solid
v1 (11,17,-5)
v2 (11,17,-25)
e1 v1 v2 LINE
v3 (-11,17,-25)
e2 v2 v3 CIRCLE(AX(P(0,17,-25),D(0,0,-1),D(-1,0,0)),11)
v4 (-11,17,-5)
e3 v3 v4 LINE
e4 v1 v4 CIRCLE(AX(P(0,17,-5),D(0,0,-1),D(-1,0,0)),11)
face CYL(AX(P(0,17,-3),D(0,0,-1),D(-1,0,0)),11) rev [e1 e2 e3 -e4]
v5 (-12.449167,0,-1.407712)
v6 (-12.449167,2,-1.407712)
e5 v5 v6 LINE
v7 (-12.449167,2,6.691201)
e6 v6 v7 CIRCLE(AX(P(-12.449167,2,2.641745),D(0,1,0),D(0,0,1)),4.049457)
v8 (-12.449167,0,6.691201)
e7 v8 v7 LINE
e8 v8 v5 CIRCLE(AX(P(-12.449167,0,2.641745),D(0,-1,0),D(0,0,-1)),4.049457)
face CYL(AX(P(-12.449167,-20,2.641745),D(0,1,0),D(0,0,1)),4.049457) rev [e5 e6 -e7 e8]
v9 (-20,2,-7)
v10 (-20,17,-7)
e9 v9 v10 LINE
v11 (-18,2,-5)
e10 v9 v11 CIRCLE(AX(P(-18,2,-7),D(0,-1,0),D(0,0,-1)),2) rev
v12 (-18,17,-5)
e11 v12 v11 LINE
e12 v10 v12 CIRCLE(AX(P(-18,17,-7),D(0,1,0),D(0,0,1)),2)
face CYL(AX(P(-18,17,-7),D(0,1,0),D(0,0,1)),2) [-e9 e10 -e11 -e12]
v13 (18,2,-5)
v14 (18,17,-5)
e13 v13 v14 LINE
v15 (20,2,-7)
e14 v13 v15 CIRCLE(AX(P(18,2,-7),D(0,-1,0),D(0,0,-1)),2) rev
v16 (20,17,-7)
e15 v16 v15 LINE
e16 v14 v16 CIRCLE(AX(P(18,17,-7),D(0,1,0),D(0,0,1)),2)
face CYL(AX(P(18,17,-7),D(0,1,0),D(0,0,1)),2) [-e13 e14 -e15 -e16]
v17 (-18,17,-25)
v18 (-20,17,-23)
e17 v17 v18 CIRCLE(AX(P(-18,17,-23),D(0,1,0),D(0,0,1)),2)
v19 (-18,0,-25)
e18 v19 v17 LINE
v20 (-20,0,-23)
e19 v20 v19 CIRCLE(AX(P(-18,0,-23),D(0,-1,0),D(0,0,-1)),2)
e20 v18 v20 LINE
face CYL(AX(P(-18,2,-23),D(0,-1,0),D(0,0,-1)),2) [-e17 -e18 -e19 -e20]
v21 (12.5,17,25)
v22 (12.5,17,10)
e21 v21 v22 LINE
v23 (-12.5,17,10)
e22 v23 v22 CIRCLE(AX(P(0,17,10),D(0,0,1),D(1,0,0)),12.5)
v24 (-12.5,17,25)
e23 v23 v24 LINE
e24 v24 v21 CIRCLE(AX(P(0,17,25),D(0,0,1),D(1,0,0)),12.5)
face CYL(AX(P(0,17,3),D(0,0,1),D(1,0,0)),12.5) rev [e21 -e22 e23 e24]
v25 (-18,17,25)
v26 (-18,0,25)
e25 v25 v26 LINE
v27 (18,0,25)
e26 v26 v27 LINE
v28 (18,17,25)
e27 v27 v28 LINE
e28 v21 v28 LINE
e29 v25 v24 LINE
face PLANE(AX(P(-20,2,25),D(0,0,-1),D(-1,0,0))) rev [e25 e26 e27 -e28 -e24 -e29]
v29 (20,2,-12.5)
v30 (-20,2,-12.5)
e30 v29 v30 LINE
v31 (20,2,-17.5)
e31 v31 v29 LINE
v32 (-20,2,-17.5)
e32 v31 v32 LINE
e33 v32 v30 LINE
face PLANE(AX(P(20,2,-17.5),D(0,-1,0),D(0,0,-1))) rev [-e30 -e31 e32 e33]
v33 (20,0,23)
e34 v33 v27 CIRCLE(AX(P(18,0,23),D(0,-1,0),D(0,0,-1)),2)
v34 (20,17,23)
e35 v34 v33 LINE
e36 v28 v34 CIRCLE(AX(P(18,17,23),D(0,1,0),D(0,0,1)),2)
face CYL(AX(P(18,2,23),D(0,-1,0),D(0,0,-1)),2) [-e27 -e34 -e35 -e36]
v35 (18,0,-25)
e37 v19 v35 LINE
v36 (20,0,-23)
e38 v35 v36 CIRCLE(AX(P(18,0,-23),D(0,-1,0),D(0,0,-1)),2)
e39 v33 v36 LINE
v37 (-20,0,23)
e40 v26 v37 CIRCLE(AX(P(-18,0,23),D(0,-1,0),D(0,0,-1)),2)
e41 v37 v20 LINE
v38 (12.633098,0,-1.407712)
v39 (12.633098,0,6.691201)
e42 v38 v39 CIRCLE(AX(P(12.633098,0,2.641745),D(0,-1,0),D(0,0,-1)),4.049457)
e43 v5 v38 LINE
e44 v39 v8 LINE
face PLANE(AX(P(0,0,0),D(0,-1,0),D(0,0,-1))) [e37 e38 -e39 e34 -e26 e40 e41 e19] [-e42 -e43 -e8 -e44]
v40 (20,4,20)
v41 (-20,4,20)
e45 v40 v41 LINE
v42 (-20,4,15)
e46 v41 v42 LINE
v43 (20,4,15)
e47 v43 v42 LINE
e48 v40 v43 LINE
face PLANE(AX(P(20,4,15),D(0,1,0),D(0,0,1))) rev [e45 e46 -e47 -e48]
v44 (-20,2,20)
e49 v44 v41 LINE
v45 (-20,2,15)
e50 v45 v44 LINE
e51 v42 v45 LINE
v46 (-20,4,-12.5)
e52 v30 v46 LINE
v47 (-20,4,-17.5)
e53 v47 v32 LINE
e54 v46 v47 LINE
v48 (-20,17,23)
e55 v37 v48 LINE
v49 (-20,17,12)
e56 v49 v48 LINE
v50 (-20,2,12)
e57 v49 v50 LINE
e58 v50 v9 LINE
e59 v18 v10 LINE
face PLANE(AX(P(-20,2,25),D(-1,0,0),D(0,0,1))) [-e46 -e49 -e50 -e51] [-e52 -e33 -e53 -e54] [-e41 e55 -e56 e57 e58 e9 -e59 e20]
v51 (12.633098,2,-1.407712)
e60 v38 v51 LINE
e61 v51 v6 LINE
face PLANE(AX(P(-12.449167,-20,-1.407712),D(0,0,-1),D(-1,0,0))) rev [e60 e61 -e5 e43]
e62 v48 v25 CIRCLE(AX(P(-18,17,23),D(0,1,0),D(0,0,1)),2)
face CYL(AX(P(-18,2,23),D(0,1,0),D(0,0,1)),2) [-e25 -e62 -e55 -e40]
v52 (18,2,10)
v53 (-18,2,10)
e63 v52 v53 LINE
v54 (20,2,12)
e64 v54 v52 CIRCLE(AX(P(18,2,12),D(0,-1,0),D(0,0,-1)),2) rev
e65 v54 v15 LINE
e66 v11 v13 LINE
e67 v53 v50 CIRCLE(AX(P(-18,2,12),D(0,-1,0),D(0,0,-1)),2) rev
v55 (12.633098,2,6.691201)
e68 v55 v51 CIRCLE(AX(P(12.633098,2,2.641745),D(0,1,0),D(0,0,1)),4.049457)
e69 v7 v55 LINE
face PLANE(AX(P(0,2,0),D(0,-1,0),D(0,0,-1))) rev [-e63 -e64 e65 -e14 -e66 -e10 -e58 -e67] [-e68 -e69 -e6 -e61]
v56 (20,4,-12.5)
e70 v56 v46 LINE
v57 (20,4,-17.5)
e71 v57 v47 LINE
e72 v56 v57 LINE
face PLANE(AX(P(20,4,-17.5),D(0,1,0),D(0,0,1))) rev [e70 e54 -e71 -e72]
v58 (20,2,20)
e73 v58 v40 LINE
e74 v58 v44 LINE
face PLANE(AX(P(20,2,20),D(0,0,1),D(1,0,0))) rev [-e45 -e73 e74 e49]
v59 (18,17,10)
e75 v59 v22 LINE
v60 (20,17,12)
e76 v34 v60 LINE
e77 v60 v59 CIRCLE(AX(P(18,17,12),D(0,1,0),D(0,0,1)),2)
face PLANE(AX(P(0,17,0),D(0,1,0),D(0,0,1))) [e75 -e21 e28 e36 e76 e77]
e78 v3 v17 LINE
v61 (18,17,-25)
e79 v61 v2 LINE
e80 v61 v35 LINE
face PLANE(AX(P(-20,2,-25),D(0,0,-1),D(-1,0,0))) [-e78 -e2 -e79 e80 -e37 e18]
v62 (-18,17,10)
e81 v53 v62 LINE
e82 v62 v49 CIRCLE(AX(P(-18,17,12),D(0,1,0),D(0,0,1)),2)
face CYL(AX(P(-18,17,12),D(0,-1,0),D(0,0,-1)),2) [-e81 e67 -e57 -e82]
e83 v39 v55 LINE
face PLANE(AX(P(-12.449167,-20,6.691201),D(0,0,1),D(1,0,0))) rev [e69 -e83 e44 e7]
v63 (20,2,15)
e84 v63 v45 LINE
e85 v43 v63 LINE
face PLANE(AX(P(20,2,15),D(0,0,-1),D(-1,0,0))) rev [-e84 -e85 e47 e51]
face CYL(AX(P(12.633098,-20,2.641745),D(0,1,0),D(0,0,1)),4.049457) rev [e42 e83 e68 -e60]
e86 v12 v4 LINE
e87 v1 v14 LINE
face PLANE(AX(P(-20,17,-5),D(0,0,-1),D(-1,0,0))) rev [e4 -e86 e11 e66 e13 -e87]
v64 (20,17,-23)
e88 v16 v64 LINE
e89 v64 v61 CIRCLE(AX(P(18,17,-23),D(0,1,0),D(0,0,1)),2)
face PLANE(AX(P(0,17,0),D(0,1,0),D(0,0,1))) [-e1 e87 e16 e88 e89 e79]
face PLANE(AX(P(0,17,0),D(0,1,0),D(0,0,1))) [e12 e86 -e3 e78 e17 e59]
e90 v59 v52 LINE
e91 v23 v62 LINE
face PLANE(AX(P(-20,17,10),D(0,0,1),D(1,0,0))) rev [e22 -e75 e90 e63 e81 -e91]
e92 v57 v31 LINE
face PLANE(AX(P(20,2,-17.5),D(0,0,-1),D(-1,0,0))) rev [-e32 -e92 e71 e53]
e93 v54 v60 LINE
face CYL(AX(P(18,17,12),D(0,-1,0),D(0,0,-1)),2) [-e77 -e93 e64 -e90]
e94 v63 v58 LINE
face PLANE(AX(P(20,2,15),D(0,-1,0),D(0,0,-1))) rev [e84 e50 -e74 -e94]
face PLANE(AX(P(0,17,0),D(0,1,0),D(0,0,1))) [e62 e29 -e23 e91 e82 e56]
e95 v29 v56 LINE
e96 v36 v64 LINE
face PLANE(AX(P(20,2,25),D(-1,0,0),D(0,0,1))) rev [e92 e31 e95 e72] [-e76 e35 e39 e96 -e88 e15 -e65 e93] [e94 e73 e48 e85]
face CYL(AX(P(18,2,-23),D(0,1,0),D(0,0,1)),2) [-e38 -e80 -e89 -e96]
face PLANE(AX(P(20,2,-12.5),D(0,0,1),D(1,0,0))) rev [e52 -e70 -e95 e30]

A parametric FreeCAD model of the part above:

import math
import FreeCAD as App
import Part
import Sketcher

V = App.Vector
Q = App.Units.Quantity


def edges_at(feature, points):
    """Names of the edges that pass closest to the given points."""
    edges = feature.Shape.Edges
    near = lambda p: min(range(len(edges)), key=lambda i: edges[i].distToShape(Part.Vertex(*p))[0])
    return sorted({f"Edge{near(p) + 1}" for p in points})

doc = App.newDocument("Part")
params = doc.addObject("Spreadsheet::Sheet", "Params")
for row, (alias, value) in enumerate([
    ("sketch1_width", "40 mm"),
    ("sketch1_height", "50 mm"),
    ("pad1_length", "2 mm"),
    ("sketch2_width", "40 mm"),
    ("sketch2_height", "20 mm"),
    ("sketch2_height2", "15 mm"),
    ("pad2_length", "15 mm"),
    ("sketch3_diameter", "25 mm"),
    ("pocket1_length", "22 mm"),
    ("sketch4_diameter", "22 mm"),
    ("pocket2_length", "22 mm"),
    ("pocket3_length", "22 mm"),
    ("sketch6_width", "2 mm"),
    ("sketch6_height", "5 mm"),
    ("fillet_radius", "2 mm"),
    ("fillet2_radius", "2 mm"),
    ("fillet3_radius", "2 mm"),
    ("fillet4_radius", "2 mm"),
    ("fillet5_radius", "2 mm"),
    ("fillet6_radius", "2 mm"),
    ("fillet7_radius", "2 mm"),
    ("fillet8_radius", "2 mm"),
], start=1):
    params.set(f"A{row}", alias)
    params.set(f"B{row}", "=" + value)
    params.setAlias(f"B{row}", alias)

body = doc.addObject("PartDesign::Body", "Body")

sketch1 = body.newObject("Sketcher::SketchObject", "Sketch")
sketch1.AttachmentSupport = (doc.getObject("XZ_Plane"), [""])
sketch1.MapMode = "FlatFace"
sketch1.addGeometry(Part.LineSegment(V(-20, -25, 0), V(-20, 25, 0)), False)
sketch1.addGeometry(Part.LineSegment(V(-20, 25, 0), V(20, 25, 0)), False)
sketch1.addGeometry(Part.LineSegment(V(20, 25, 0), V(20, -25, 0)), False)
sketch1.addGeometry(Part.LineSegment(V(20, -25, 0), V(-20, -25, 0)), False)
sketch1.addConstraint(Sketcher.Constraint("Coincident", 0, 2, 1, 1))
sketch1.addConstraint(Sketcher.Constraint("Coincident", 1, 2, 2, 1))
sketch1.addConstraint(Sketcher.Constraint("Coincident", 2, 2, 3, 1))
sketch1.addConstraint(Sketcher.Constraint("Coincident", 3, 2, 0, 1))
sketch1.addConstraint(Sketcher.Constraint("Vertical", 0))
sketch1.addConstraint(Sketcher.Constraint("Horizontal", 1))
sketch1.addConstraint(Sketcher.Constraint("Vertical", 2))
sketch1.addConstraint(Sketcher.Constraint("Horizontal", 3))
sketch1.addConstraint(Sketcher.Constraint("Symmetric", 0, 2, 2, 2, -1, 1))
sketch1.addConstraint(Sketcher.Constraint("DistanceX", 1, 1, 1, 2, Q("40 mm")))
sketch1.addConstraint(Sketcher.Constraint("DistanceY", 0, 1, 0, 2, Q("50 mm")))
sketch1.setExpression("Constraints[9]", "Params.sketch1_width")
sketch1.setExpression("Constraints[10]", "Params.sketch1_height")
pad1 = body.newObject("PartDesign::Pad", "Pad")
pad1.Profile = sketch1
pad1.setExpression("Length", "Params.pad1_length")
pad1.Reversed = True

sketch2 = body.newObject("Sketcher::SketchObject", "Sketch001")
sketch2.AttachmentSupport = (doc.getObject("XZ_Plane"), [""])
sketch2.MapMode = "FlatFace"
sketch2.AttachmentOffset = App.Placement(V(0, 0, -2), App.Rotation())
sketch2.addGeometry(Part.LineSegment(V(-20, -25, 0), V(-20, -5, 0)), False)
sketch2.addGeometry(Part.LineSegment(V(-20, -5, 0), V(20, -5, 0)), False)
sketch2.addGeometry(Part.LineSegment(V(20, -5, 0), V(20, -25, 0)), False)
sketch2.addGeometry(Part.LineSegment(V(20, -25, 0), V(-20, -25, 0)), False)
sketch2.addGeometry(Part.LineSegment(V(-20, 10, 0), V(-20, 25, 0)), False)
sketch2.addGeometry(Part.LineSegment(V(-20, 25, 0), V(20, 25, 0)), False)
sketch2.addGeometry(Part.LineSegment(V(20, 25, 0), V(20, 10, 0)), False)
sketch2.addGeometry(Part.LineSegment(V(20, 10, 0), V(-20, 10, 0)), False)
sketch2.addConstraint(Sketcher.Constraint("Coincident", 0, 2, 1, 1))
sketch2.addConstraint(Sketcher.Constraint("Coincident", 1, 2, 2, 1))
sketch2.addConstraint(Sketcher.Constraint("Coincident", 2, 2, 3, 1))
sketch2.addConstraint(Sketcher.Constraint("Coincident", 3, 2, 0, 1))
sketch2.addConstraint(Sketcher.Constraint("Coincident", 4, 2, 5, 1))
sketch2.addConstraint(Sketcher.Constraint("Coincident", 5, 2, 6, 1))
sketch2.addConstraint(Sketcher.Constraint("Coincident", 6, 2, 7, 1))
sketch2.addConstraint(Sketcher.Constraint("Coincident", 7, 2, 4, 1))
sketch2.addConstraint(Sketcher.Constraint("Vertical", 0))
sketch2.addConstraint(Sketcher.Constraint("Horizontal", 1))
sketch2.addConstraint(Sketcher.Constraint("Vertical", 2))
sketch2.addConstraint(Sketcher.Constraint("Horizontal", 3))
sketch2.addConstraint(Sketcher.Constraint("Vertical", 4))
sketch2.addConstraint(Sketcher.Constraint("Horizontal", 5))
sketch2.addConstraint(Sketcher.Constraint("Vertical", 6))
sketch2.addConstraint(Sketcher.Constraint("Horizontal", 7))
sketch2.addConstraint(Sketcher.Constraint("Symmetric", 2, 2, 4, 2, -1, 1))
sketch2.addConstraint(Sketcher.Constraint("Vertical", 3, 2, 4, 2))
sketch2.addConstraint(Sketcher.Constraint("Vertical", 2, 2, 5, 2))
sketch2.addConstraint(Sketcher.Constraint("DistanceX", 1, 1, 1, 2, Q("40 mm")))
sketch2.addConstraint(Sketcher.Constraint("DistanceY", 0, 1, 0, 2, Q("20 mm")))
sketch2.addConstraint(Sketcher.Constraint("DistanceY", 4, 1, 4, 2, Q("15 mm")))
sketch2.addConstraint(Sketcher.Constraint("DistanceY", 0, 2, -1, 1, Q("5 mm")))
sketch2.setExpression("Constraints[19]", "Params.sketch2_width")
sketch2.setExpression("Constraints[20]", "Params.sketch2_height")
sketch2.setExpression("Constraints[21]", "Params.sketch2_height2")
pad2 = body.newObject("PartDesign::Pad", "Pad001")
pad2.Profile = sketch2
pad2.setExpression("Length", "Params.pad2_length")
pad2.Reversed = True

sketch3 = body.newObject("Sketcher::SketchObject", "Sketch002")
sketch3.AttachmentSupport = (doc.getObject("XY_Plane"), [""])
sketch3.MapMode = "FlatFace"
sketch3.AttachmentOffset = App.Placement(V(0, 0, 25), App.Rotation())
sketch3.addGeometry(Part.Circle(V(0, 17, 0), V(0, 0, 1), 12), False)
sketch3.addConstraint(Sketcher.Constraint("PointOnObject", 0, 3, -2))
sketch3.addConstraint(Sketcher.Constraint("Diameter", 0, Q("25 mm")))
sketch3.addConstraint(Sketcher.Constraint("DistanceY", -1, 1, 0, 3, Q("17 mm")))
sketch3.setExpression("Constraints[1]", "Params.sketch3_diameter")
pocket1 = body.newObject("PartDesign::Pocket", "Pocket")
pocket1.Profile = sketch3
pocket1.setExpression("Length", "Params.pocket1_length")

sketch4 = body.newObject("Sketcher::SketchObject", "Sketch003")
sketch4.AttachmentSupport = (doc.getObject("XY_Plane"), [""])
sketch4.MapMode = "FlatFace"
sketch4.AttachmentOffset = App.Placement(V(0, 0, -25), App.Rotation())
sketch4.addGeometry(Part.Circle(V(0, 17, 0), V(0, 0, 1), 11), False)
sketch4.addConstraint(Sketcher.Constraint("PointOnObject", 0, 3, -2))
sketch4.addConstraint(Sketcher.Constraint("Diameter", 0, Q("22 mm")))
sketch4.addConstraint(Sketcher.Constraint("DistanceY", -1, 1, 0, 3, Q("17 mm")))
sketch4.setExpression("Constraints[1]", "Params.sketch4_diameter")
pocket2 = body.newObject("PartDesign::Pocket", "Pocket001")
pocket2.Profile = sketch4
pocket2.setExpression("Length", "Params.pocket2_length")
pocket2.Reversed = True

sketch5 = body.newObject("Sketcher::SketchObject", "Sketch004")
sketch5.AttachmentSupport = (doc.getObject("XZ_Plane"), [""])
sketch5.MapMode = "FlatFace"
sketch5.AttachmentOffset = App.Placement(V(0, 0, -2), App.Rotation())
sketch5.addGeometry(Part.LineSegment(V(12.6, -1.4, 0), V(-12.4, -1.4, 0)), False)
sketch5.addGeometry(Part.ArcOfCircle(Part.Circle(V(-12.4, 2.6, 0), V(0, 0, 1), 4), math.radians(90), math.radians(270)), False)
sketch5.addGeometry(Part.LineSegment(V(-12.4, 6.7, 0), V(12.6, 6.7, 0)), False)
sketch5.addGeometry(Part.ArcOfCircle(Part.Circle(V(12.6, 2.6, 0), V(0, 0, 1), 4), math.radians(-90), math.radians(90)), False)
sketch5.addConstraint(Sketcher.Constraint("Tangent", 0, 2, 1, 2))
sketch5.addConstraint(Sketcher.Constraint("Tangent", 1, 1, 2, 1))
sketch5.addConstraint(Sketcher.Constraint("Tangent", 2, 2, 3, 2))
sketch5.addConstraint(Sketcher.Constraint("Tangent", 3, 1, 0, 1))
sketch5.addConstraint(Sketcher.Constraint("Horizontal", 0))
sketch5.addConstraint(Sketcher.Constraint("Horizontal", 2))
sketch5.addConstraint(Sketcher.Constraint("Radius", 1, Q("4.049457 mm")))
sketch5.addConstraint(Sketcher.Constraint("DistanceY", -1, 1, 1, 1, Q("6.691201 mm")))
sketch5.addConstraint(Sketcher.Constraint("DistanceX", 0, 2, 0, 1, Q("25.082265 mm")))
sketch5.addConstraint(Sketcher.Constraint("DistanceX", 1, 3, -1, 1, Q("12.449167 mm")))
pocket3 = body.newObject("PartDesign::Pocket", "Pocket002")
pocket3.Profile = sketch5
pocket3.setExpression("Length", "Params.pocket3_length")
pocket3.Reversed = True

sketch6 = body.newObject("Sketcher::SketchObject", "Sketch005")
sketch6.AttachmentSupport = (doc.getObject("YZ_Plane"), [""])
sketch6.MapMode = "FlatFace"
sketch6.AttachmentOffset = App.Placement(V(0, 0, -20), App.Rotation())
sketch6.addGeometry(Part.LineSegment(V(4, -17.5, 0), V(2, -17.5, 0)), False)
sketch6.addGeometry(Part.LineSegment(V(2, -17.5, 0), V(2, -12.5, 0)), False)
sketch6.addGeometry(Part.LineSegment(V(2, -12.5, 0), V(4, -12.5, 0)), False)
sketch6.addGeometry(Part.LineSegment(V(4, -12.5, 0), V(4, -17.5, 0)), False)
sketch6.addGeometry(Part.LineSegment(V(4, 15, 0), V(2, 15, 0)), False)
sketch6.addGeometry(Part.LineSegment(V(2, 15, 0), V(2, 20, 0)), False)
sketch6.addGeometry(Part.LineSegment(V(2, 20, 0), V(4, 20, 0)), False)
sketch6.addGeometry(Part.LineSegment(V(4, 20, 0), V(4, 15, 0)), False)
sketch6.addConstraint(Sketcher.Constraint("Coincident", 0, 2, 1, 1))
sketch6.addConstraint(Sketcher.Constraint("Coincident", 1, 2, 2, 1))
sketch6.addConstraint(Sketcher.Constraint("Coincident", 2, 2, 3, 1))
sketch6.addConstraint(Sketcher.Constraint("Coincident", 3, 2, 0, 1))
sketch6.addConstraint(Sketcher.Constraint("Coincident", 4, 2, 5, 1))
sketch6.addConstraint(Sketcher.Constraint("Coincident", 5, 2, 6, 1))
sketch6.addConstraint(Sketcher.Constraint("Coincident", 6, 2, 7, 1))
sketch6.addConstraint(Sketcher.Constraint("Coincident", 7, 2, 4, 1))
sketch6.addConstraint(Sketcher.Constraint("Horizontal", 0))
sketch6.addConstraint(Sketcher.Constraint("Vertical", 1))
sketch6.addConstraint(Sketcher.Constraint("Horizontal", 2))
sketch6.addConstraint(Sketcher.Constraint("Vertical", 3))
sketch6.addConstraint(Sketcher.Constraint("Horizontal", 4))
sketch6.addConstraint(Sketcher.Constraint("Vertical", 5))
sketch6.addConstraint(Sketcher.Constraint("Horizontal", 6))
sketch6.addConstraint(Sketcher.Constraint("Vertical", 7))
sketch6.addConstraint(Sketcher.Constraint("Vertical", 1, 2, 4, 2))
sketch6.addConstraint(Sketcher.Constraint("Vertical", 3, 2, 6, 2))
sketch6.addConstraint(Sketcher.Constraint("Equal", 3, 5))
sketch6.addConstraint(Sketcher.Constraint("DistanceX", 0, 2, 0, 1, Q("2 mm")))
sketch6.addConstraint(Sketcher.Constraint("DistanceY", 1, 1, 1, 2, Q("5 mm")))
sketch6.addConstraint(Sketcher.Constraint("DistanceX", -1, 1, 0, 2, Q("2 mm")))
sketch6.addConstraint(Sketcher.Constraint("DistanceY", -1, 1, 4, 2, Q("15 mm")))
sketch6.addConstraint(Sketcher.Constraint("DistanceY", 0, 2, -1, 1, Q("17.5 mm")))
sketch6.setExpression("Constraints[19]", "Params.sketch6_width")
sketch6.setExpression("Constraints[20]", "Params.sketch6_height")
pocket4 = body.newObject("PartDesign::Pocket", "Pocket003")
pocket4.Profile = sketch6
pocket4.Type = "ThroughAll"
pocket4.Reversed = True
doc.recompute()

fillet = body.newObject("PartDesign::Fillet", "Fillet")
fillet.Base = (pocket4, edges_at(pocket4, [(-20, 9.5, 10)]))
fillet.setExpression("Radius", "Params.fillet_radius")
doc.recompute()

fillet2 = body.newObject("PartDesign::Fillet", "Fillet001")
fillet2.Base = (fillet, edges_at(fillet, [(-20, 9.5, -5)]))
fillet2.setExpression("Radius", "Params.fillet2_radius")
doc.recompute()

fillet3 = body.newObject("PartDesign::Fillet", "Fillet002")
fillet3.Base = (fillet2, edges_at(fillet2, [(-20, 8.5, 25)]))
fillet3.setExpression("Radius", "Params.fillet3_radius")
doc.recompute()

fillet4 = body.newObject("PartDesign::Fillet", "Fillet003")
fillet4.Base = (fillet3, edges_at(fillet3, [(-20, 8.5, -25)]))
fillet4.setExpression("Radius", "Params.fillet4_radius")
doc.recompute()

fillet5 = body.newObject("PartDesign::Fillet", "Fillet004")
fillet5.Base = (fillet4, edges_at(fillet4, [(20, 8.5, -25)]))
fillet5.setExpression("Radius", "Params.fillet5_radius")
doc.recompute()

fillet6 = body.newObject("PartDesign::Fillet", "Fillet005")
fillet6.Base = (fillet5, edges_at(fillet5, [(20, 9.5, 10)]))
fillet6.setExpression("Radius", "Params.fillet6_radius")
doc.recompute()

fillet7 = body.newObject("PartDesign::Fillet", "Fillet006")
fillet7.Base = (fillet6, edges_at(fillet6, [(20, 9.5, -5)]))
fillet7.setExpression("Radius", "Params.fillet7_radius")
doc.recompute()

fillet8 = body.newObject("PartDesign::Fillet", "Fillet007")
fillet8.Base = (fillet7, edges_at(fillet7, [(20, 8.5, 25)]))
fillet8.setExpression("Radius", "Params.fillet8_radius")

doc.recompute()
